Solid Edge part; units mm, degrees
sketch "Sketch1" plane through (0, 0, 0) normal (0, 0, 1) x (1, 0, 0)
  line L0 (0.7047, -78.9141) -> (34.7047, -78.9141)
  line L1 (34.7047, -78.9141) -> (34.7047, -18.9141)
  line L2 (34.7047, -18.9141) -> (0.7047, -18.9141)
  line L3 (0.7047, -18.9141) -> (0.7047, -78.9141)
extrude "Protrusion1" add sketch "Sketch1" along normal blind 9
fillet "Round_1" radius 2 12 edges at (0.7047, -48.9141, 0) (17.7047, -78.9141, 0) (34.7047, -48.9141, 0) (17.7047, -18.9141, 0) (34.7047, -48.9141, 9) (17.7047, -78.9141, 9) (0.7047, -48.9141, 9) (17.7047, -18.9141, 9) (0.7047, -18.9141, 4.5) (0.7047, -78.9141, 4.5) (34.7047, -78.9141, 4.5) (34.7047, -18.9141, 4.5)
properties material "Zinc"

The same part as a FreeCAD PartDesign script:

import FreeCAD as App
import Part
import Sketcher

V = App.Vector

doc = App.newDocument("Part")
params = doc.addObject("Spreadsheet::Sheet", "Params")
for row, (alias, value) in enumerate([
    ("sketch1_width", "34 mm"),
    ("sketch1_height", "60 mm"),
    ("pad1_length", "9 mm"),
    ("fillet_radius", "2 mm"),
], start=1):
    params.set(f"A{row}", alias)
    params.set(f"B{row}", "=" + value)
    params.setAlias(f"B{row}", alias)

body = doc.addObject("PartDesign::Body", "Body")

# Sketch on XY plane
sketch1 = body.newObject("Sketcher::SketchObject", "Sketch")
sketch1.AttachmentSupport = (doc.getObject("XY_Plane"), [""])
sketch1.MapMode = "FlatFace"
sketch1.addGeometry(Part.LineSegment(V(0.7047, -18.9141, 0), V(0.7047, -78.9141, 0)), False)
sketch1.addGeometry(Part.LineSegment(V(0.7047, -78.9141, 0), V(34.7047, -78.9141, 0)), False)
sketch1.addGeometry(Part.LineSegment(V(34.7047, -78.9141, 0), V(34.7047, -18.9141, 0)), False)
sketch1.addGeometry(Part.LineSegment(V(34.7047, -18.9141, 0), V(0.7047, -18.9141, 0)), False)
sketch1.addConstraint(Sketcher.Constraint("Coincident", 0, 2, 1, 1))
sketch1.addConstraint(Sketcher.Constraint("Coincident", 1, 2, 2, 1))
sketch1.addConstraint(Sketcher.Constraint("Coincident", 2, 2, 3, 1))
sketch1.addConstraint(Sketcher.Constraint("Coincident", 3, 2, 0, 1))
sketch1.addConstraint(Sketcher.Constraint("Vertical", 0))
sketch1.addConstraint(Sketcher.Constraint("Horizontal", 1))
sketch1.addConstraint(Sketcher.Constraint("Vertical", 2))
sketch1.addConstraint(Sketcher.Constraint("Horizontal", 3))
sketch1.addConstraint(Sketcher.Constraint("DistanceX", 1, 1, 1, 2, 34.0))
sketch1.addConstraint(Sketcher.Constraint("DistanceY", 0, 2, 0, 1, 60.0))
sketch1.addConstraint(Sketcher.Constraint("DistanceY", 0, 2, -1, 1, 78.914))
sketch1.addConstraint(Sketcher.Constraint("DistanceX", -1, 1, 0, 2, 0.7047))
sketch1.setExpression("Constraints[8]", "Params.sketch1_width")
sketch1.setExpression("Constraints[9]", "Params.sketch1_height")
pad1 = body.newObject("PartDesign::Pad", "Pad")
pad1.Profile = sketch1
pad1.setExpression("Length", "Params.pad1_length")
doc.recompute()

fillet = body.newObject("PartDesign::Fillet", "Fillet")
fillet.Base = (pad1, ["Edge1"])
fillet.UseAllEdges = True
fillet.setExpression("Radius", "Params.fillet_radius")

doc.recompute()
